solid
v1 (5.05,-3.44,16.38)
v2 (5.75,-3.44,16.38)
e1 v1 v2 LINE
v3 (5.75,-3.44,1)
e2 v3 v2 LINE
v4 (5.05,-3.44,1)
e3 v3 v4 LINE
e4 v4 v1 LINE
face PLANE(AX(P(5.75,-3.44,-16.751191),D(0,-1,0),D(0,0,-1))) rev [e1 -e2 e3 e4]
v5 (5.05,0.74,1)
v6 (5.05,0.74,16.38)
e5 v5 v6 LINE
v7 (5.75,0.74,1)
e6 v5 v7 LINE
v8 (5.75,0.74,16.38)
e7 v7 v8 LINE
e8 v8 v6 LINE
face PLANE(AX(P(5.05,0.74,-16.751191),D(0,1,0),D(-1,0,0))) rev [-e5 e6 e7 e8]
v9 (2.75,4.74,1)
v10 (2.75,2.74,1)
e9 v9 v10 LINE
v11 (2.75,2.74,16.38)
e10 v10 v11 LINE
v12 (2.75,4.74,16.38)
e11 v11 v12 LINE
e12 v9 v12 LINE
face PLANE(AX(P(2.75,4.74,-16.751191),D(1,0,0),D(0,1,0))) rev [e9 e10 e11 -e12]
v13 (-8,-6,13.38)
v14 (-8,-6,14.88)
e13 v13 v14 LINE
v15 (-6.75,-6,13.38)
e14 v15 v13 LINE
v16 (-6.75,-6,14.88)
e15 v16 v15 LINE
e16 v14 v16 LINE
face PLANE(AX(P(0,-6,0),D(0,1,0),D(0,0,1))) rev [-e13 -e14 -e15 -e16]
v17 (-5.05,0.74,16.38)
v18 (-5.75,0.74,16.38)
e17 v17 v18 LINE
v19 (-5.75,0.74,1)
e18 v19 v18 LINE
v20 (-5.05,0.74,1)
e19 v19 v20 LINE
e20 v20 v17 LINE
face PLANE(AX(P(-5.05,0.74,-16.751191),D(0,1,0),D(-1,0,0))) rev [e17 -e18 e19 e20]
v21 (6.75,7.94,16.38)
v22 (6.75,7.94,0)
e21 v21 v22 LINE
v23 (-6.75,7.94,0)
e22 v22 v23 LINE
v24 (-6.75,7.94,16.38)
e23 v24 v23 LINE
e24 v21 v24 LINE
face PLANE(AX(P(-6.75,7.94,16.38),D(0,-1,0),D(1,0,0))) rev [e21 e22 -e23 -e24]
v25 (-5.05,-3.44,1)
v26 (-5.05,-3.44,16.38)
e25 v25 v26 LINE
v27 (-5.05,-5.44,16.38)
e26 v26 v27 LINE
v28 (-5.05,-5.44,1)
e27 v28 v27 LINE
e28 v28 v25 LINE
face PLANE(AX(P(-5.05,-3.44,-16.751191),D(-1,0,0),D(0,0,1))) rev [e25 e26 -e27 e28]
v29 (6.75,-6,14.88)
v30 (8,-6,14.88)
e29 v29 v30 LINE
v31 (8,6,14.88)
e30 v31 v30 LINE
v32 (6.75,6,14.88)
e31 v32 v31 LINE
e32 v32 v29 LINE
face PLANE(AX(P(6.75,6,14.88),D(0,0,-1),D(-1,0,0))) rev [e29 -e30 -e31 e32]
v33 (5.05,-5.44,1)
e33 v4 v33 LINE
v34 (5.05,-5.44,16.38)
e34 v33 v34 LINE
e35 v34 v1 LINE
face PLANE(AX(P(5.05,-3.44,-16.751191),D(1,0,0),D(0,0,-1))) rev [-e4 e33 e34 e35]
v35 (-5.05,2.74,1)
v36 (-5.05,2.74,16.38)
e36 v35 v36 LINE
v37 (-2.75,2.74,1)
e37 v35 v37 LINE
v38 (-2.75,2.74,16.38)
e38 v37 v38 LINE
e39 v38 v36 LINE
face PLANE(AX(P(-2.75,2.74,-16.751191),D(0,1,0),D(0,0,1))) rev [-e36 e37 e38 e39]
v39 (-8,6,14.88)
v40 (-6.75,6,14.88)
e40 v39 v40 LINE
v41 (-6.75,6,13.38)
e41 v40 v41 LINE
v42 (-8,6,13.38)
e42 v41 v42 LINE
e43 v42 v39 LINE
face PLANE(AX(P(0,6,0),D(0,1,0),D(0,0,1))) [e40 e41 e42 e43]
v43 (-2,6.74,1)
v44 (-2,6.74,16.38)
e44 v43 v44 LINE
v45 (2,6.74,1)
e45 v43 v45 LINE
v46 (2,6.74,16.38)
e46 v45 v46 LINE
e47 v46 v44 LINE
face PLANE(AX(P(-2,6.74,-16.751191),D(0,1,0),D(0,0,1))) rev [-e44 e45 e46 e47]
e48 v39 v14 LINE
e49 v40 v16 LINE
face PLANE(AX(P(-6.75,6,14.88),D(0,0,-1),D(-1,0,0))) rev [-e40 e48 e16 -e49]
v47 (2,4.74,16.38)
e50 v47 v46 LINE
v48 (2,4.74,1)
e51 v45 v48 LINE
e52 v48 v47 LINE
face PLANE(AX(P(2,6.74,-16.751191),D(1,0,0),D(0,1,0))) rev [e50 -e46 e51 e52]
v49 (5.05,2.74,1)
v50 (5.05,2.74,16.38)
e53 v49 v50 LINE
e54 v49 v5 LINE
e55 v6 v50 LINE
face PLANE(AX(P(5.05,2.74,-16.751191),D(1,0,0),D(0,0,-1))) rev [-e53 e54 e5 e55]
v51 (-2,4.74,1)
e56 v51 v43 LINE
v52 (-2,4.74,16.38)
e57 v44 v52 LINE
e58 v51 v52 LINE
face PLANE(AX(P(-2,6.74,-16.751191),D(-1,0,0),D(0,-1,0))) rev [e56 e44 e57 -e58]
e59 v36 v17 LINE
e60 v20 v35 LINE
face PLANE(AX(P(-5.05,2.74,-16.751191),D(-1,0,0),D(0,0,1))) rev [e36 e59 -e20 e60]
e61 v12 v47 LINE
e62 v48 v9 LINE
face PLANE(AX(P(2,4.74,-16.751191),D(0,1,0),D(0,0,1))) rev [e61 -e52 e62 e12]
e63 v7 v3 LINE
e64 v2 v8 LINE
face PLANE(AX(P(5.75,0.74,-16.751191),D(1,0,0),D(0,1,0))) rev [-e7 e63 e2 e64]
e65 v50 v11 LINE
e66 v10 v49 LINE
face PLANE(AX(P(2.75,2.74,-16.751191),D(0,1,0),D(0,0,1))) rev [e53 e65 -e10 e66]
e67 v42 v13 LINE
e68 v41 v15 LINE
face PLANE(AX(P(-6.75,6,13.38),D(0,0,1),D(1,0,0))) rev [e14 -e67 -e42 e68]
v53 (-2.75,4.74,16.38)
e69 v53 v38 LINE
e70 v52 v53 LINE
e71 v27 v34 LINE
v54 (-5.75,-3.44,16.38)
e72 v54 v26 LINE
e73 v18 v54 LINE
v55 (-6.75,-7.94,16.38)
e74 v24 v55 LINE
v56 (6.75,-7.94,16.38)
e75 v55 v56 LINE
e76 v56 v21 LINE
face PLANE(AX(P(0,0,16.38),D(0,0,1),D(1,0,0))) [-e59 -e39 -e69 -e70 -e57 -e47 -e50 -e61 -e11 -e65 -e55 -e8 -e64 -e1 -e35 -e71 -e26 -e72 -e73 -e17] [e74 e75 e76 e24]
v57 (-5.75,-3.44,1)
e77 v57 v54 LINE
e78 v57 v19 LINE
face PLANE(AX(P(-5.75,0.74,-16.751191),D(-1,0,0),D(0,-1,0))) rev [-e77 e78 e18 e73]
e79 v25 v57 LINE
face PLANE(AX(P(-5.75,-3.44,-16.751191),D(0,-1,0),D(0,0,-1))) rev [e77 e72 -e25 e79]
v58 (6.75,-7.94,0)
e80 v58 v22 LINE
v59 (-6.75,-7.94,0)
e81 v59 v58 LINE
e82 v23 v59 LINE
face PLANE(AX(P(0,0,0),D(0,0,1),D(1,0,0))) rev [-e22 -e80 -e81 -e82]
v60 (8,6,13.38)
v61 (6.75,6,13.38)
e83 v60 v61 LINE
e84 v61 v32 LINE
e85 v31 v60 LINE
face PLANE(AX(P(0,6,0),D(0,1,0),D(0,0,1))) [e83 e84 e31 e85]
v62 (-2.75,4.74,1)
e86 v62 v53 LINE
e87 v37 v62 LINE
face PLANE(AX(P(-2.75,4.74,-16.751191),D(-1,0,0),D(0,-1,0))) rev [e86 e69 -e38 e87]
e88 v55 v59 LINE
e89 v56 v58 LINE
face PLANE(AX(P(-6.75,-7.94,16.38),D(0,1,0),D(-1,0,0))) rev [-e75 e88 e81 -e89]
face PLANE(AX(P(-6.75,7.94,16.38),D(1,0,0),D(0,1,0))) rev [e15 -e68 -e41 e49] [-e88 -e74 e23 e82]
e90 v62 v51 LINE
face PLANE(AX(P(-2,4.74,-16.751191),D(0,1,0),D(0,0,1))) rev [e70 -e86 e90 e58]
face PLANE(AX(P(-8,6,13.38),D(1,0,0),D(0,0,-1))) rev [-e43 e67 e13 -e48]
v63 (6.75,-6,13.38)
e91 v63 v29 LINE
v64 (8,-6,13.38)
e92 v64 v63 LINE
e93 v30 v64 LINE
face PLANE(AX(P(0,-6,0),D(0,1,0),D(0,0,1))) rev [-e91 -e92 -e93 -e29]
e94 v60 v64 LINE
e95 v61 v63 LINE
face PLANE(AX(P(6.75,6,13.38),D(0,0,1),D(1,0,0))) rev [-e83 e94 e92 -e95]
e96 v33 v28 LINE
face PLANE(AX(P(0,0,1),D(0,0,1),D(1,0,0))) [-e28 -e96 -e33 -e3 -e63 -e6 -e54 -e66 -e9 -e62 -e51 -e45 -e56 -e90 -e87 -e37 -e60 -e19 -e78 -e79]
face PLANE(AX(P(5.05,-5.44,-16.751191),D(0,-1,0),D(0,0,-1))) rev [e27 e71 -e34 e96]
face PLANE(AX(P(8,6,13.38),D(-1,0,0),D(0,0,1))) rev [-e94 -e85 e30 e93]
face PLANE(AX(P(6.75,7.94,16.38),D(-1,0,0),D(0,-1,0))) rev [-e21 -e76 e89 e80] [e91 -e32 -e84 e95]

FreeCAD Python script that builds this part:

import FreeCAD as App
import Part
import Sketcher


def add_polygon(sketch, points):
    """Adds a closed chain of lines whose ends are joined by coincident constraints."""
    first, n = sketch.GeometryCount, len(points)
    for a, b in zip(points, points[1:] + points[:1]):
        sketch.addGeometry(Part.LineSegment(App.Vector(*a, 0), App.Vector(*b, 0)), False)
    for i in range(n):
        sketch.addConstraint(Sketcher.Constraint("Coincident", first + i, 2, first + (i + 1) % n, 1))

doc = App.newDocument("Part")
params = doc.addObject("Spreadsheet::Sheet", "Params")
for row, (alias, value) in enumerate([
    ("sketch1_width", "13.5 mm"),
    ("sketch1_height", "15.88 mm"),
    ("pad1_length", "16.38 mm"),
    ("sketch2_width", "4 mm"),
    ("sketch2_height", "2 mm"),
    ("sketch2_width2", "2.3 mm"),
    ("sketch2_width3", "0.7 mm"),
    ("sketch2_width4", "10.1 mm"),
    ("pocket1_length", "15.38 mm"),
    ("sketch3_height", "1.5 mm"),
    ("sketch3_width", "1.25 mm"),
    ("pad2_length", "12 mm"),
], start=1):
    params.set(f"A{row}", alias)
    params.set(f"B{row}", "=" + value)
    params.setAlias(f"B{row}", alias)

body = doc.addObject("PartDesign::Body", "Body")

# Sketch on XY plane
sketch1 = body.newObject("Sketcher::SketchObject", "Sketch")
sketch1.AttachmentSupport = (doc.getObject("XY_Plane"), [""])
sketch1.MapMode = "FlatFace"
add_polygon(sketch1, [(-7, 8), (-7, -8), (7, -8), (7, 8)])  # lines 0-3
sketch1.addConstraint([
    Sketcher.Constraint("Vertical", 0),
    Sketcher.Constraint("Horizontal", 1),
    Sketcher.Constraint("Vertical", 2),
    Sketcher.Constraint("Horizontal", 3),
    Sketcher.Constraint("Symmetric", 0, 2, 2, 2, -1, 1),
    Sketcher.Constraint("DistanceX", 1, 1, 1, 2, 13.5),
    Sketcher.Constraint("DistanceY", 0, 2, 0, 1, 15.88),
])
sketch1.setExpression("Constraints[9]", "Params.sketch1_width")
sketch1.setExpression("Constraints[10]", "Params.sketch1_height")
pad1 = body.newObject("PartDesign::Pad", "Pad")
pad1.Profile = sketch1
pad1.setExpression("Length", "Params.pad1_length")

# Sketch on XY plane
sketch2 = body.newObject("Sketcher::SketchObject", "Sketch001")
sketch2.AttachmentSupport = (doc.getObject("XY_Plane"), [""])
sketch2.MapMode = "FlatFace"
sketch2.AttachmentOffset = App.Placement(App.Vector(0, 0, 16.38), App.Rotation())
add_polygon(sketch2, [(2, 6.7), (-2, 6.7), (-2, 4.7), (-2.8, 4.7), (-2.8, 2.7), (-5, 2.7), (-5, 0.7), (-5.8, 0.7), (-5.8, -3.4), (-5, -3.4), (-5, -5.4), (5, -5.4), (5, -3.4), (5.8, -3.4), (5.8, 0.7), (5, 0.7), (5, 2.7), (2.8, 2.7), (2.8, 4.7), (2, 4.7)])  # lines 0-19
sketch2.addConstraint([
    Sketcher.Constraint("Horizontal", 0),
    Sketcher.Constraint("Vertical", 1),
    Sketcher.Constraint("Horizontal", 2),
    Sketcher.Constraint("Vertical", 3),
    Sketcher.Constraint("Horizontal", 4),
    Sketcher.Constraint("Vertical", 5),
    Sketcher.Constraint("Horizontal", 6),
    Sketcher.Constraint("Vertical", 7),
    Sketcher.Constraint("Horizontal", 8),
    Sketcher.Constraint("Vertical", 9),
    Sketcher.Constraint("Horizontal", 10),
    Sketcher.Constraint("Vertical", 11),
    Sketcher.Constraint("Horizontal", 12),
    Sketcher.Constraint("Vertical", 13),
    Sketcher.Constraint("Horizontal", 14),
    Sketcher.Constraint("Vertical", 15),
    Sketcher.Constraint("Horizontal", 16),
    Sketcher.Constraint("Vertical", 17),
    Sketcher.Constraint("Horizontal", 18),
    Sketcher.Constraint("Vertical", 19),
    Sketcher.Constraint("Symmetric", 8, 2, 11, 2, -2),
    Sketcher.Constraint("Symmetric", 6, 2, 13, 2, -2),
    Sketcher.Constraint("Symmetric", 4, 2, 15, 2, -2),
    Sketcher.Constraint("Symmetric", 2, 2, 17, 2, -2),
    Sketcher.Constraint("Vertical", 5, 2, 8, 2),
    Sketcher.Constraint("Equal", 2, 18),
    Sketcher.Constraint("Equal", 1, 3),
    Sketcher.Constraint("Equal", 3, 5),
    Sketcher.Constraint("Equal", 5, 9),
    Sketcher.Constraint("DistanceX", 0, 2, 0, 1, 4.0),
    Sketcher.Constraint("DistanceY", 1, 2, 1, 1, 2.0),
    Sketcher.Constraint("DistanceX", 4, 2, 4, 1, 2.3),
    Sketcher.Constraint("DistanceX", 6, 2, 6, 1, 0.7),
    Sketcher.Constraint("DistanceX", 10, 1, 10, 2, 10.1),
    Sketcher.Constraint("DistanceY", 7, 2, 7, 1, 4.18),
    Sketcher.Constraint("DistanceY", -1, 1, 0, 2, 6.74),
])
sketch2.setExpression("Constraints[49]", "Params.sketch2_width")
sketch2.setExpression("Constraints[50]", "Params.sketch2_height")
sketch2.setExpression("Constraints[51]", "Params.sketch2_width2")
sketch2.setExpression("Constraints[52]", "Params.sketch2_width3")
sketch2.setExpression("Constraints[53]", "Params.sketch2_width4")
pocket1 = body.newObject("PartDesign::Pocket", "Pocket")
pocket1.Profile = sketch2
pocket1.setExpression("Length", "Params.pocket1_length")

# Sketch on XZ plane
sketch3 = body.newObject("Sketcher::SketchObject", "Sketch002")
sketch3.AttachmentSupport = (doc.getObject("XZ_Plane"), [""])
sketch3.MapMode = "FlatFace"
add_polygon(sketch3, [(6.8, 13.4), (6.8, 14.9), (8, 14.9), (8, 13.4)])  # lines 0-3
add_polygon(sketch3, [(-8, 13.4), (-8, 14.9), (-6.8, 14.9), (-6.8, 13.4)])  # lines 4-7
sketch3.addConstraint([
    Sketcher.Constraint("Vertical", 0),
    Sketcher.Constraint("Horizontal", 1),
    Sketcher.Constraint("Vertical", 2),
    Sketcher.Constraint("Horizontal", 3),
    Sketcher.Constraint("Vertical", 4),
    Sketcher.Constraint("Horizontal", 5),
    Sketcher.Constraint("Vertical", 6),
    Sketcher.Constraint("Horizontal", 7),
    Sketcher.Constraint("Symmetric", 1, 2, 4, 2, -2),
    Sketcher.Constraint("Symmetric", 3, 2, 6, 2, -2),
    Sketcher.Constraint("DistanceY", 0, 1, 0, 2, 1.5),
    Sketcher.Constraint("DistanceX", -1, 1, 1, 2, 8.0),
    Sketcher.Constraint("DistanceX", 1, 1, 1, 2, 1.25),
    Sketcher.Constraint("DistanceY", -1, 1, 0, 2, 14.88),
])
sketch3.setExpression("Constraints[18]", "Params.sketch3_height")
sketch3.setExpression("Constraints[20]", "Params.sketch3_width")
pad2 = body.newObject("PartDesign::Pad", "Pad001")
pad2.Profile = sketch3
pad2.setExpression("Length", "Params.pad2_length")
pad2.Midplane = True

doc.recompute()
